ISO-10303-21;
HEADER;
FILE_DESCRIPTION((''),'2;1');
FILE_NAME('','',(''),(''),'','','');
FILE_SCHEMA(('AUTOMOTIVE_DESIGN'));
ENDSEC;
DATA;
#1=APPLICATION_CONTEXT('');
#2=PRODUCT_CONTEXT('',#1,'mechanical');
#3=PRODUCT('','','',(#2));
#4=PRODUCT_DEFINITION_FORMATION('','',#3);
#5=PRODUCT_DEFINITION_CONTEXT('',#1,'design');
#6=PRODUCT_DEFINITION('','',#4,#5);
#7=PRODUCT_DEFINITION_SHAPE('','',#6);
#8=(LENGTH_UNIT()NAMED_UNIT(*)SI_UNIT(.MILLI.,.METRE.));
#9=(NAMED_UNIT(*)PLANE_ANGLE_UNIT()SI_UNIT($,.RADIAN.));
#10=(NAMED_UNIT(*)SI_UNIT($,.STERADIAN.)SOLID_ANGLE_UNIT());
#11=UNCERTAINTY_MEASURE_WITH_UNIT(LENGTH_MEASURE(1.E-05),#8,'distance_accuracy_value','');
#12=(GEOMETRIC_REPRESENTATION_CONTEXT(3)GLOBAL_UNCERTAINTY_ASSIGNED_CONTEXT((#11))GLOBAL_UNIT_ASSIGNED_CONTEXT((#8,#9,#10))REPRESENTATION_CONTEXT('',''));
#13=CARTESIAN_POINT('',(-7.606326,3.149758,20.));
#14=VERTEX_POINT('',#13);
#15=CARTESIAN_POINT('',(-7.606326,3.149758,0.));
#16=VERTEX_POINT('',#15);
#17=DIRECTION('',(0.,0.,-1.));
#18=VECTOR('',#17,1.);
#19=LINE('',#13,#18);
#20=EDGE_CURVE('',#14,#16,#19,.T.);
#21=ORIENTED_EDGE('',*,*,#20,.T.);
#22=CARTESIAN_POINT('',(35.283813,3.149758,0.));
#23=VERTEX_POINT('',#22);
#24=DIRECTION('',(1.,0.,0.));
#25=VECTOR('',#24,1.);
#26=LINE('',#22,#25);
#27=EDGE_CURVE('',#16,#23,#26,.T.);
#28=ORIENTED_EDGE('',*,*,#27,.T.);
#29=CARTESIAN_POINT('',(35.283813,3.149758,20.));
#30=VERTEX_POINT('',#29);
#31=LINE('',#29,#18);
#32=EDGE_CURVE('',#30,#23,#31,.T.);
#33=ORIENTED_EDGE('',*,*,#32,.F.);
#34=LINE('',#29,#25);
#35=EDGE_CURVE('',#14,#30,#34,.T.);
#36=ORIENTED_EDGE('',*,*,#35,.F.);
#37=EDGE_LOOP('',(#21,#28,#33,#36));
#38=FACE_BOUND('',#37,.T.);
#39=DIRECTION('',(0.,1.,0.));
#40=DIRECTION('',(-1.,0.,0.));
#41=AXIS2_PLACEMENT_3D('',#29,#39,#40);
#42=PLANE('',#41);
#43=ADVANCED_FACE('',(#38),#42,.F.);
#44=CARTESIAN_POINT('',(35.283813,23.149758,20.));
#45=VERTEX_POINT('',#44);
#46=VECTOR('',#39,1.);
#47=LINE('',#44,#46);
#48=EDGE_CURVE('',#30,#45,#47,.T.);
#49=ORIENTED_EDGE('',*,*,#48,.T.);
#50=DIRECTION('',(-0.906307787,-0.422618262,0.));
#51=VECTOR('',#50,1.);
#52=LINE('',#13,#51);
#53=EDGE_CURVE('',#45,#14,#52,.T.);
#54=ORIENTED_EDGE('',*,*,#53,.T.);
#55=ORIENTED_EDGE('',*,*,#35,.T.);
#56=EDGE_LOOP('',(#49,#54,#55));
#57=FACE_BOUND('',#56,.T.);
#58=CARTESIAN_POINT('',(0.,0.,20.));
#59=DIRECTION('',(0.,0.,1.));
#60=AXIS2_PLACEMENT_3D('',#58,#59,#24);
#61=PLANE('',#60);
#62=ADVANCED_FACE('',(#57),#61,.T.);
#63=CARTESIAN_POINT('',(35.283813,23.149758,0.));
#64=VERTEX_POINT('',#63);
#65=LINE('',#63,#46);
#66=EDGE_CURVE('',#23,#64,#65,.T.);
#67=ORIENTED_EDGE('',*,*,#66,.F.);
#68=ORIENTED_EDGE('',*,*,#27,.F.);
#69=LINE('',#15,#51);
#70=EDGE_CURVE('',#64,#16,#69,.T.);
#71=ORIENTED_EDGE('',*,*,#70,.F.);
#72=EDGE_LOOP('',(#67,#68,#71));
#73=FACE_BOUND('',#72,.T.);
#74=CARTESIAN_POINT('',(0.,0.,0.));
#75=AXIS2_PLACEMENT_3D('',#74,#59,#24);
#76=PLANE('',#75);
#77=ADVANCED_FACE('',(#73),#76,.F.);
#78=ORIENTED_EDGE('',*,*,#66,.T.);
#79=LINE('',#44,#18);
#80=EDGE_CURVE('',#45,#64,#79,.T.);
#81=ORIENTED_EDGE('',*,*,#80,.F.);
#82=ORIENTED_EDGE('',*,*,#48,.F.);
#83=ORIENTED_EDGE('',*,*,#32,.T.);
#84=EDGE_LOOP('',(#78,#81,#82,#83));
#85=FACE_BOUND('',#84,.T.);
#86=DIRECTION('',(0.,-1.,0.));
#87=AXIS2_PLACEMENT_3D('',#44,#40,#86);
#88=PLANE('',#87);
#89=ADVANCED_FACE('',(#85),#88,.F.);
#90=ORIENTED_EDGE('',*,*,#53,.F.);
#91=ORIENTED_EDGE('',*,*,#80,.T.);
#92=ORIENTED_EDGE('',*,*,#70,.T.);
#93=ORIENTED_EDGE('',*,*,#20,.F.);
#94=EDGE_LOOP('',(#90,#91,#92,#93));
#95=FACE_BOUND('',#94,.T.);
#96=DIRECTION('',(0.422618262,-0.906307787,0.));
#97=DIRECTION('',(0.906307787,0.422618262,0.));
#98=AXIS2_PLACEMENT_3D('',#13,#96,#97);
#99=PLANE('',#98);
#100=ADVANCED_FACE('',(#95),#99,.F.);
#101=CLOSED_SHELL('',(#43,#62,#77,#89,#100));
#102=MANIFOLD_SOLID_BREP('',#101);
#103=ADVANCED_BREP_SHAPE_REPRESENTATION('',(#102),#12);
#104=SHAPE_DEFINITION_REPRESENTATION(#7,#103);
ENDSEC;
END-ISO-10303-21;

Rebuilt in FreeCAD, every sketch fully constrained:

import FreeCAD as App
import Part
import Sketcher
Q = App.Units.Quantity


def add_polygon(sketch, points):
    """Adds a closed chain of lines whose ends are joined by coincident constraints."""
    first, n = sketch.GeometryCount, len(points)
    for a, b in zip(points, points[1:] + points[:1]):
        sketch.addGeometry(Part.LineSegment(App.Vector(*a, 0), App.Vector(*b, 0)), False)
    for i in range(n):
        sketch.addConstraint(Sketcher.Constraint("Coincident", first + i, 2, first + (i + 1) % n, 1))

doc = App.newDocument("Part")
params = doc.addObject("Spreadsheet::Sheet", "Params")
for row, (alias, value) in enumerate([
    ("sketch1_height", "20 mm"),
    ("pad1_length", "20 mm"),
], start=1):
    params.set(f"A{row}", alias)
    params.set(f"B{row}", "=" + value)
    params.setAlias(f"B{row}", alias)

body = doc.addObject("PartDesign::Body", "Body")

# Sketch on XY plane
sketch1 = doc.addObject("Sketcher::SketchObject", "Sketch")
body.addObject(sketch1)
sketch1.AttachmentSupport = (doc.XY_Plane, [""])
sketch1.MapMode = "FlatFace"
add_polygon(sketch1, [(35.283813, 23.149758), (-7.606326, 3.149758), (35.283813, 3.149758)])  # lines 0-2
sketch1.addConstraint(Sketcher.Constraint("Horizontal", 1))
sketch1.addConstraint(Sketcher.Constraint("Vertical", 2))
sketch1.addConstraint(Sketcher.Constraint("DistanceY", 2, 1, 2, 2, 20.0))
sketch1.addConstraint(Sketcher.Constraint("Angle", 0, Q("-155 deg")))
sketch1.addConstraint(Sketcher.Constraint("DistanceX", 0, 2, -1, 1, 7.606326))
sketch1.addConstraint(Sketcher.Constraint("DistanceY", -1, 1, 0, 2, 3.149758))
sketch1.setExpression("Constraints[5]", "Params.sketch1_height")
pad1 = doc.addObject("PartDesign::Pad", "Pad")
body.addObject(pad1)
pad1.Profile = sketch1
pad1.setExpression("Length", "Params.pad1_length")

doc.recompute()
